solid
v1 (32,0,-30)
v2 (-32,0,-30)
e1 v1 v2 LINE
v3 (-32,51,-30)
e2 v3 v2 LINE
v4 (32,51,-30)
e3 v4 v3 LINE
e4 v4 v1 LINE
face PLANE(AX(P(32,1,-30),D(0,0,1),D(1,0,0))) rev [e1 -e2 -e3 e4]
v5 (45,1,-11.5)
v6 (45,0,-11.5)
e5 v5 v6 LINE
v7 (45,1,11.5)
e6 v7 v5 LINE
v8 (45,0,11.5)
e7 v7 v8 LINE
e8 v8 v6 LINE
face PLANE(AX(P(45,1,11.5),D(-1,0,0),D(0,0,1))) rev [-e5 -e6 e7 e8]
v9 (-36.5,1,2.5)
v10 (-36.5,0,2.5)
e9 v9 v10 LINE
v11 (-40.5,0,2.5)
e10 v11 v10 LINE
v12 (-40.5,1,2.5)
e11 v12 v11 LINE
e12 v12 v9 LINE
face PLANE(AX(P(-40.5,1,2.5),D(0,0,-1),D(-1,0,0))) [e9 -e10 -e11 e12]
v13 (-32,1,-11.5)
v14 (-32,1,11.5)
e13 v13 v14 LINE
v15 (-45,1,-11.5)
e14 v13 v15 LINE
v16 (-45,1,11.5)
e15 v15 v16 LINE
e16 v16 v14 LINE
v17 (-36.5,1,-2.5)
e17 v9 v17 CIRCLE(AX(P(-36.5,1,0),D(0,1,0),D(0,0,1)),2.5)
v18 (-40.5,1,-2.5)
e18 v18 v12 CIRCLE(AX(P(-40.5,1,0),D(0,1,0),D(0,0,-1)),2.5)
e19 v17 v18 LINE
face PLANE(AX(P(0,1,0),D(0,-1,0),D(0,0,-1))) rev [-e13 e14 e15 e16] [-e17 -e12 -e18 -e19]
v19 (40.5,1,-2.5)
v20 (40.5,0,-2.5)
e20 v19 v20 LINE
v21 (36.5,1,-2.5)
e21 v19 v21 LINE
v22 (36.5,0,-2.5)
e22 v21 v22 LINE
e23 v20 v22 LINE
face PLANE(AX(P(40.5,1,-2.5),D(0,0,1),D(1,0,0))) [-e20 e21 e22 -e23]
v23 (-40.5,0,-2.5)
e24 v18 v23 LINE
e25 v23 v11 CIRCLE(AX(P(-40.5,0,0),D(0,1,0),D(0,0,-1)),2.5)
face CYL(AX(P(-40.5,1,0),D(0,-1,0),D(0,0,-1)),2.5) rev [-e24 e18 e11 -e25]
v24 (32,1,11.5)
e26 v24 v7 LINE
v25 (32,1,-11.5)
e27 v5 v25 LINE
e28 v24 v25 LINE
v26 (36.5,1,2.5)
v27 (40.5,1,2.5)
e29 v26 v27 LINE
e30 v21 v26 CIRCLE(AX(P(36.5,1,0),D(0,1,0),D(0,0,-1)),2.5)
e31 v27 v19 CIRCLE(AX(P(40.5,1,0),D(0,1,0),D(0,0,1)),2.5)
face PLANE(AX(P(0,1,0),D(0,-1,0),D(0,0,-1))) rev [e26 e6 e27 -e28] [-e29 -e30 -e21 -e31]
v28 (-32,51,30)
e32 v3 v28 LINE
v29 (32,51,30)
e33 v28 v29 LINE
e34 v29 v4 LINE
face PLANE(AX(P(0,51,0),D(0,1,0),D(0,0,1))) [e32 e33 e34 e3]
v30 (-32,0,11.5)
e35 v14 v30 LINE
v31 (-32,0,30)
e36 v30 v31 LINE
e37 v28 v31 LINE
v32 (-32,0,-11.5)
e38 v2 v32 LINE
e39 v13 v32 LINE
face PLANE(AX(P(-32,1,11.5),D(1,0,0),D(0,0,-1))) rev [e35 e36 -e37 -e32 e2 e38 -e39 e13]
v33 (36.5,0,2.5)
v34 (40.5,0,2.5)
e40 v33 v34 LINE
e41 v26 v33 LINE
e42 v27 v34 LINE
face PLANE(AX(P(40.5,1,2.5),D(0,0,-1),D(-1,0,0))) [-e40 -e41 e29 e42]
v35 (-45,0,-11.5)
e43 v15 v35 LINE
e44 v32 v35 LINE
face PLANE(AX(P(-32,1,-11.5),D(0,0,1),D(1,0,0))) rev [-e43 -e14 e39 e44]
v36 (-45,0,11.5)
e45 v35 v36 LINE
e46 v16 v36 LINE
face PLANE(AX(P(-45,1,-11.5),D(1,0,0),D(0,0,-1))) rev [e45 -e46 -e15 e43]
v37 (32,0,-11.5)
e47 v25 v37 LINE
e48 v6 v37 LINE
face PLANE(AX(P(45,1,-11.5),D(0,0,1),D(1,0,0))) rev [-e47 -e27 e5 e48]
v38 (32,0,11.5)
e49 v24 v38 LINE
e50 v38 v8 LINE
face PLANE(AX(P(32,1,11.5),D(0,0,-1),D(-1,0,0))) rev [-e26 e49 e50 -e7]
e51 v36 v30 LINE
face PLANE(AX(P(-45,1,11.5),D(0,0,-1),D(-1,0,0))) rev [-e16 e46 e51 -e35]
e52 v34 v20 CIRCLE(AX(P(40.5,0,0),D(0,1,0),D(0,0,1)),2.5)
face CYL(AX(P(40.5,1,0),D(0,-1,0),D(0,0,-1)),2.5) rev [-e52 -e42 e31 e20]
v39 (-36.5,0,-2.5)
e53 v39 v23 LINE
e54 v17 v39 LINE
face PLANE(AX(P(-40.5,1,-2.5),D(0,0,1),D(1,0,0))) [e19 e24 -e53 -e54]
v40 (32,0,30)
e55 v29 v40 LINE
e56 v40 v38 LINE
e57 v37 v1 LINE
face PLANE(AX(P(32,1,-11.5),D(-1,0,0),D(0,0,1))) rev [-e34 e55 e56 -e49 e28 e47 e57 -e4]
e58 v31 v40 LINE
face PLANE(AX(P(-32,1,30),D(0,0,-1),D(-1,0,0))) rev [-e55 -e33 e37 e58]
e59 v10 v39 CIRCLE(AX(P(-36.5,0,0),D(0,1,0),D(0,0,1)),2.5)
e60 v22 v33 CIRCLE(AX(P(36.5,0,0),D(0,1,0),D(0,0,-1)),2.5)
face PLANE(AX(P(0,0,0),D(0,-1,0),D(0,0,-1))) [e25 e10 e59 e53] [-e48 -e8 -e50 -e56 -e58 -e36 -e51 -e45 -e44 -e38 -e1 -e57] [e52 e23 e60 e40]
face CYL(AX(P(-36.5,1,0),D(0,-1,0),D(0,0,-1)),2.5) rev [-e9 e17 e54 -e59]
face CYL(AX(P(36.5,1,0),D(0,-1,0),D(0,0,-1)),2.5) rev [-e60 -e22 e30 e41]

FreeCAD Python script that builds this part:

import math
import FreeCAD as App
import Part
import Sketcher
from FreeCAD import Vector


def add_polygon(sketch, points):
    """Adds a closed chain of lines whose ends are joined by coincident constraints."""
    first, n = sketch.GeometryCount, len(points)
    for a, b in zip(points, points[1:] + points[:1]):
        sketch.addGeometry(Part.LineSegment(App.Vector(*a, 0), App.Vector(*b, 0)), False)
    for i in range(n):
        sketch.addConstraint(Sketcher.Constraint("Coincident", first + i, 2, first + (i + 1) % n, 1))

doc = App.newDocument("Part")
body = doc.addObject("PartDesign::Body", "Body")

# Sketch on XZ plane
sketch1 = body.newObject("Sketcher::SketchObject", "Sketch")
sketch1.AttachmentSupport = (doc.getObject("XZ_Plane"), [""])
sketch1.MapMode = "FlatFace"
add_polygon(sketch1, [(-32, -11.5), (-45, -11.5), (-45, 11.5), (-32, 11.5), (-32, 30), (32, 30), (32, 11.5), (45, 11.5), (45, -11.5), (32, -11.5), (32, -30), (-32, -30)])  # lines 0-11
sketch1.addGeometry(Part.LineSegment(Vector(-36.5, 2.5, 0), Vector(-40.5, 2.5, 0)), False)  # 12
sketch1.addGeometry(Part.ArcOfCircle(Part.Circle(Vector(-40.5, 0, 0), Vector(0, 0, 1), 2.5), math.radians(90), math.radians(270)), False)  # 13
sketch1.addGeometry(Part.LineSegment(Vector(-40.5, -2.5, 0), Vector(-36.5, -2.5, 0)), False)  # 14
sketch1.addGeometry(Part.ArcOfCircle(Part.Circle(Vector(-36.5, 0, 0), Vector(0, 0, 1), 2.5), math.radians(-90), math.radians(90)), False)  # 15
sketch1.addGeometry(Part.ArcOfCircle(Part.Circle(Vector(40.5, 0, 0), Vector(0, 0, 1), 2.5), math.radians(-90), math.radians(90)), False)  # 16
sketch1.addGeometry(Part.LineSegment(Vector(40.5, 2.5, 0), Vector(36.5, 2.5, 0)), False)  # 17
sketch1.addGeometry(Part.ArcOfCircle(Part.Circle(Vector(36.5, 0, 0), Vector(0, 0, 1), 2.5), math.radians(90), math.radians(270)), False)  # 18
sketch1.addGeometry(Part.LineSegment(Vector(36.5, -2.5, 0), Vector(40.5, -2.5, 0)), False)  # 19
sketch1.addConstraint(Sketcher.Constraint("Tangent", 12, 2, 13, 1))
sketch1.addConstraint(Sketcher.Constraint("Tangent", 13, 2, 14, 1))
sketch1.addConstraint(Sketcher.Constraint("Tangent", 14, 2, 15, 1))
sketch1.addConstraint(Sketcher.Constraint("Tangent", 15, 2, 12, 1))
sketch1.addConstraint(Sketcher.Constraint("Tangent", 16, 2, 17, 1))
sketch1.addConstraint(Sketcher.Constraint("Tangent", 17, 2, 18, 1))
sketch1.addConstraint(Sketcher.Constraint("Tangent", 18, 2, 19, 1))
sketch1.addConstraint(Sketcher.Constraint("Tangent", 19, 2, 16, 1))
sketch1.addConstraint(Sketcher.Constraint("Horizontal", 0))
sketch1.addConstraint(Sketcher.Constraint("Vertical", 1))
sketch1.addConstraint(Sketcher.Constraint("Horizontal", 2))
sketch1.addConstraint(Sketcher.Constraint("Vertical", 3))
sketch1.addConstraint(Sketcher.Constraint("Horizontal", 4))
sketch1.addConstraint(Sketcher.Constraint("Vertical", 5))
sketch1.addConstraint(Sketcher.Constraint("Horizontal", 6))
sketch1.addConstraint(Sketcher.Constraint("Vertical", 7))
sketch1.addConstraint(Sketcher.Constraint("Horizontal", 8))
sketch1.addConstraint(Sketcher.Constraint("Vertical", 9))
sketch1.addConstraint(Sketcher.Constraint("Horizontal", 10))
sketch1.addConstraint(Sketcher.Constraint("Vertical", 11))
sketch1.addConstraint(Sketcher.Constraint("Horizontal", 12))
sketch1.addConstraint(Sketcher.Constraint("Horizontal", 14))
sketch1.addConstraint(Sketcher.Constraint("Horizontal", 17))
sketch1.addConstraint(Sketcher.Constraint("Horizontal", 19))
sketch1.addConstraint(Sketcher.Constraint("Equal", 15, 16))
sketch1.addConstraint(Sketcher.Constraint("Symmetric", 13, 3, 16, 3, -1, 1))
sketch1.addConstraint(Sketcher.Constraint("Symmetric", 0, 2, 6, 2, -1, 1))
sketch1.addConstraint(Sketcher.Constraint("Symmetric", 2, 2, 8, 2, -1, 1))
sketch1.addConstraint(Sketcher.Constraint("Symmetric", 4, 2, 10, 2, -1, 1))
sketch1.addConstraint(Sketcher.Constraint("Symmetric", 15, 3, 18, 3, -2))
sketch1.addConstraint(Sketcher.Constraint("Symmetric", 2, 2, 5, 2, -2))
sketch1.addConstraint(Sketcher.Constraint("Radius", 13, 2.5))
sketch1.addConstraint(Sketcher.Constraint("DistanceX", 0, 2, 0, 1, 13.0))
sketch1.addConstraint(Sketcher.Constraint("DistanceX", 4, 1, 4, 2, 64.0))
sketch1.addConstraint(Sketcher.Constraint("DistanceX", 12, 2, 12, 1, 4.0))
sketch1.addConstraint(Sketcher.Constraint("DistanceY", 1, 1, 1, 2, 23.0))
sketch1.addConstraint(Sketcher.Constraint("DistanceY", 3, 1, 3, 2, 18.5))
sketch1.addConstraint(Sketcher.Constraint("DistanceX", 15, 3, 16, 3, 77.0))
pad1 = body.newObject("PartDesign::Pad", "Pad")
pad1.Profile = sketch1
pad1.Length = 1
pad1.Reversed = True

# Sketch on XZ plane
sketch2 = body.newObject("Sketcher::SketchObject", "Sketch001")
sketch2.AttachmentSupport = (doc.getObject("XZ_Plane"), [""])
sketch2.MapMode = "FlatFace"
sketch2.AttachmentOffset = App.Placement(Vector(0, 0, -1), App.Rotation())
add_polygon(sketch2, [(-32, -30), (-32, 30), (32, 30), (32, -30)])  # lines 0-3
sketch2.addConstraint(Sketcher.Constraint("Vertical", 0))
sketch2.addConstraint(Sketcher.Constraint("Horizontal", 1))
sketch2.addConstraint(Sketcher.Constraint("Vertical", 2))
sketch2.addConstraint(Sketcher.Constraint("Horizontal", 3))
sketch2.addConstraint(Sketcher.Constraint("Symmetric", 0, 2, 2, 2, -1, 1))
sketch2.addConstraint(Sketcher.Constraint("DistanceX", 1, 1, 1, 2, 64.0))
sketch2.addConstraint(Sketcher.Constraint("DistanceY", 0, 1, 0, 2, 60.0))
pad2 = body.newObject("PartDesign::Pad", "Pad001")
pad2.Profile = sketch2
pad2.Length = 50
pad2.Reversed = True

doc.recompute()
